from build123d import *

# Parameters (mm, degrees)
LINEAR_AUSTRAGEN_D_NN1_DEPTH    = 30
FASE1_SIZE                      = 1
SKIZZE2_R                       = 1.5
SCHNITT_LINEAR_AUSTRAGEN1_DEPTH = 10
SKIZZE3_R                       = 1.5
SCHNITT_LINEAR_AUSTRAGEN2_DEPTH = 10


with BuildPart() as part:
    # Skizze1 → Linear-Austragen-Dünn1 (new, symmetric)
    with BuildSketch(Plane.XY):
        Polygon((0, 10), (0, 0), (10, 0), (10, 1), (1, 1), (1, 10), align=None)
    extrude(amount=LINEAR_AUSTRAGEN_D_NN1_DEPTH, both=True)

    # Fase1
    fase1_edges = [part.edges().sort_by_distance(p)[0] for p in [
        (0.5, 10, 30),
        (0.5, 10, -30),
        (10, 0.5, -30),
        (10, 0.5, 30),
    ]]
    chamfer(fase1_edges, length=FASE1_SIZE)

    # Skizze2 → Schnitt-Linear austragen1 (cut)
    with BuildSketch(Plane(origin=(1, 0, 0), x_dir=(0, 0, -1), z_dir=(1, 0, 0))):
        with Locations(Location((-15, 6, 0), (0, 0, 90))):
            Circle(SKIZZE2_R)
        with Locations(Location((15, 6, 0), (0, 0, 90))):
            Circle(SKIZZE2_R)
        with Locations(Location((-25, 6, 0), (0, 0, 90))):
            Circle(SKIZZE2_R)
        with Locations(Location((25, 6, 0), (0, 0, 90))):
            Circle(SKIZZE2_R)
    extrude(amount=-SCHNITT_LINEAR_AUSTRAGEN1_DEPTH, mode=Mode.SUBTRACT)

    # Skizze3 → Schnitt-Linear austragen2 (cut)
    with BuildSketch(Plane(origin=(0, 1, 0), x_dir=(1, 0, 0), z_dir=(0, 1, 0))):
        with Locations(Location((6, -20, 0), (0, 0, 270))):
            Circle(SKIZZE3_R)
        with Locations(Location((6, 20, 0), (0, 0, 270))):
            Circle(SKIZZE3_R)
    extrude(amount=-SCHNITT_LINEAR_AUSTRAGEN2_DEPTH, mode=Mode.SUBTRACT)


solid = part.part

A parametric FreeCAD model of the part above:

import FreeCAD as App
import Part
import Sketcher
from FreeCAD import Vector


def edges_at(feature, points):
    """Names of the edges that pass closest to the given points."""
    edges = feature.Shape.Edges
    near = lambda p: min(range(len(edges)), key=lambda i: edges[i].distToShape(Part.Vertex(*p))[0])
    return sorted({f"Edge{near(p) + 1}" for p in points})

doc = App.newDocument("Part")
params = doc.addObject("Spreadsheet::Sheet", "Params")
for row, (alias, value) in enumerate([
    ("sketch1_width", "10 mm"),
    ("sketch1_width2", "9 mm"),
    ("pad1_length", "60 mm"),
    ("chamfer_size", "1 mm"),
    ("sketch2_diameter", "3 mm"),
    ("pocket1_length", "10 mm"),
    ("sketch3_diameter", "3 mm"),
    ("pocket2_length", "10 mm"),
], start=1):
    params.set(f"A{row}", alias)
    params.set(f"B{row}", "=" + value)
    params.setAlias(f"B{row}", alias)

body = doc.addObject("PartDesign::Body", "Body")

sketch1 = doc.addObject("Sketcher::SketchObject", "Sketch")
body.addObject(sketch1)
sketch1.AttachmentSupport = (doc.XY_Plane, [""])
sketch1.MapMode = "FlatFace"
sketch1.addGeometry(Part.LineSegment(Vector(0, 10, 0), Vector(0, 0, 0)), False)
sketch1.addGeometry(Part.LineSegment(Vector(0, 0, 0), Vector(10, 0, 0)), False)
sketch1.addGeometry(Part.LineSegment(Vector(10, 0, 0), Vector(10, 1, 0)), False)
sketch1.addGeometry(Part.LineSegment(Vector(10, 1, 0), Vector(1, 1, 0)), False)
sketch1.addGeometry(Part.LineSegment(Vector(1, 1, 0), Vector(1, 10, 0)), False)
sketch1.addGeometry(Part.LineSegment(Vector(1, 10, 0), Vector(0, 10, 0)), False)
sketch1.addConstraint(Sketcher.Constraint("Coincident", 0, 2, 1, 1))
sketch1.addConstraint(Sketcher.Constraint("Coincident", 1, 2, 2, 1))
sketch1.addConstraint(Sketcher.Constraint("Coincident", 2, 2, 3, 1))
sketch1.addConstraint(Sketcher.Constraint("Coincident", 3, 2, 4, 1))
sketch1.addConstraint(Sketcher.Constraint("Coincident", 4, 2, 5, 1))
sketch1.addConstraint(Sketcher.Constraint("Coincident", 5, 2, 0, 1))
sketch1.addConstraint(Sketcher.Constraint("Vertical", 0))
sketch1.addConstraint(Sketcher.Constraint("Horizontal", 1))
sketch1.addConstraint(Sketcher.Constraint("Vertical", 2))
sketch1.addConstraint(Sketcher.Constraint("Horizontal", 3))
sketch1.addConstraint(Sketcher.Constraint("Vertical", 4))
sketch1.addConstraint(Sketcher.Constraint("Horizontal", 5))
sketch1.addConstraint(Sketcher.Constraint("Coincident", 0, 2, -1, 1))
sketch1.addConstraint(Sketcher.Constraint("Equal", 1, 0))
sketch1.addConstraint(Sketcher.Constraint("Equal", 5, 2))
sketch1.addConstraint(Sketcher.Constraint("DistanceX", 1, 1, 1, 2, 10.0))
sketch1.addConstraint(Sketcher.Constraint("DistanceX", 3, 2, 3, 1, 9.0))
sketch1.setExpression("Constraints[15]", "Params.sketch1_width")
sketch1.setExpression("Constraints[16]", "Params.sketch1_width2")
pad1 = doc.addObject("PartDesign::Pad", "Pad")
body.addObject(pad1)
pad1.Profile = sketch1
pad1.setExpression("Length", "Params.pad1_length")
pad1.Midplane = True
doc.recompute()

chamfer = doc.addObject("PartDesign::Chamfer", "Chamfer")
body.addObject(chamfer)
chamfer.Base = (pad1, edges_at(pad1, [
    (0.5, 10, 30),
    (0.5, 10, -30),
    (10, 0.5, -30),
    (10, 0.5, 30),
]))
chamfer.setExpression("Size", "Params.chamfer_size")

sketch2 = doc.addObject("Sketcher::SketchObject", "Sketch001")
body.addObject(sketch2)
sketch2.AttachmentSupport = (doc.YZ_Plane, [""])
sketch2.MapMode = "FlatFace"
sketch2.AttachmentOffset = App.Placement(Vector(0, 0, 1), App.Rotation())
sketch2.addGeometry(Part.Circle(Vector(6, 15, 0), Vector(0, 0, 1), 1.5), False)
sketch2.addGeometry(Part.Circle(Vector(6, -15, 0), Vector(0, 0, 1), 1.5), False)
sketch2.addGeometry(Part.Circle(Vector(6, 25, 0), Vector(0, 0, 1), 1.5), False)
sketch2.addGeometry(Part.Circle(Vector(6, -25, 0), Vector(0, 0, 1), 1.5), False)
sketch2.addConstraint(Sketcher.Constraint("Equal", 0, 1))
sketch2.addConstraint(Sketcher.Constraint("Equal", 1, 2))
sketch2.addConstraint(Sketcher.Constraint("Equal", 2, 3))
sketch2.addConstraint(Sketcher.Constraint("Symmetric", 0, 3, 1, 3, -1))
sketch2.addConstraint(Sketcher.Constraint("Symmetric", 2, 3, 3, 3, -1))
sketch2.addConstraint(Sketcher.Constraint("Vertical", 1, 3, 2, 3))
sketch2.addConstraint(Sketcher.Constraint("Diameter", 0, 3.0))
sketch2.addConstraint(Sketcher.Constraint("DistanceX", -1, 1, 0, 3, 6.0))
sketch2.addConstraint(Sketcher.Constraint("DistanceY", -1, 1, 0, 3, 15.0))
sketch2.addConstraint(Sketcher.Constraint("DistanceY", -1, 1, 2, 3, 25.0))
sketch2.setExpression("Constraints[6]", "Params.sketch2_diameter")
pocket1 = doc.addObject("PartDesign::Pocket", "Pocket")
body.addObject(pocket1)
pocket1.Profile = sketch2
pocket1.setExpression("Length", "Params.pocket1_length")

sketch3 = doc.addObject("Sketcher::SketchObject", "Sketch002")
body.addObject(sketch3)
sketch3.AttachmentSupport = (doc.XZ_Plane, [""])
sketch3.MapMode = "FlatFace"
sketch3.AttachmentOffset = App.Placement(Vector(0, 0, -1), App.Rotation())
sketch3.addGeometry(Part.Circle(Vector(6, 20, 0), Vector(0, 0, 1), 1.5), False)
sketch3.addGeometry(Part.Circle(Vector(6, -20, 0), Vector(0, 0, 1), 1.5), False)
sketch3.addConstraint(Sketcher.Constraint("Equal", 0, 1))
sketch3.addConstraint(Sketcher.Constraint("Symmetric", 0, 3, 1, 3, -1))
sketch3.addConstraint(Sketcher.Constraint("Diameter", 0, 3.0))
sketch3.addConstraint(Sketcher.Constraint("DistanceX", -1, 1, 0, 3, 6.0))
sketch3.addConstraint(Sketcher.Constraint("DistanceY", -1, 1, 0, 3, 20.0))
sketch3.setExpression("Constraints[2]", "Params.sketch3_diameter")
pocket2 = doc.addObject("PartDesign::Pocket", "Pocket001")
body.addObject(pocket2)
pocket2.Profile = sketch3
pocket2.setExpression("Length", "Params.pocket2_length")
pocket2.Reversed = True

doc.recompute()
